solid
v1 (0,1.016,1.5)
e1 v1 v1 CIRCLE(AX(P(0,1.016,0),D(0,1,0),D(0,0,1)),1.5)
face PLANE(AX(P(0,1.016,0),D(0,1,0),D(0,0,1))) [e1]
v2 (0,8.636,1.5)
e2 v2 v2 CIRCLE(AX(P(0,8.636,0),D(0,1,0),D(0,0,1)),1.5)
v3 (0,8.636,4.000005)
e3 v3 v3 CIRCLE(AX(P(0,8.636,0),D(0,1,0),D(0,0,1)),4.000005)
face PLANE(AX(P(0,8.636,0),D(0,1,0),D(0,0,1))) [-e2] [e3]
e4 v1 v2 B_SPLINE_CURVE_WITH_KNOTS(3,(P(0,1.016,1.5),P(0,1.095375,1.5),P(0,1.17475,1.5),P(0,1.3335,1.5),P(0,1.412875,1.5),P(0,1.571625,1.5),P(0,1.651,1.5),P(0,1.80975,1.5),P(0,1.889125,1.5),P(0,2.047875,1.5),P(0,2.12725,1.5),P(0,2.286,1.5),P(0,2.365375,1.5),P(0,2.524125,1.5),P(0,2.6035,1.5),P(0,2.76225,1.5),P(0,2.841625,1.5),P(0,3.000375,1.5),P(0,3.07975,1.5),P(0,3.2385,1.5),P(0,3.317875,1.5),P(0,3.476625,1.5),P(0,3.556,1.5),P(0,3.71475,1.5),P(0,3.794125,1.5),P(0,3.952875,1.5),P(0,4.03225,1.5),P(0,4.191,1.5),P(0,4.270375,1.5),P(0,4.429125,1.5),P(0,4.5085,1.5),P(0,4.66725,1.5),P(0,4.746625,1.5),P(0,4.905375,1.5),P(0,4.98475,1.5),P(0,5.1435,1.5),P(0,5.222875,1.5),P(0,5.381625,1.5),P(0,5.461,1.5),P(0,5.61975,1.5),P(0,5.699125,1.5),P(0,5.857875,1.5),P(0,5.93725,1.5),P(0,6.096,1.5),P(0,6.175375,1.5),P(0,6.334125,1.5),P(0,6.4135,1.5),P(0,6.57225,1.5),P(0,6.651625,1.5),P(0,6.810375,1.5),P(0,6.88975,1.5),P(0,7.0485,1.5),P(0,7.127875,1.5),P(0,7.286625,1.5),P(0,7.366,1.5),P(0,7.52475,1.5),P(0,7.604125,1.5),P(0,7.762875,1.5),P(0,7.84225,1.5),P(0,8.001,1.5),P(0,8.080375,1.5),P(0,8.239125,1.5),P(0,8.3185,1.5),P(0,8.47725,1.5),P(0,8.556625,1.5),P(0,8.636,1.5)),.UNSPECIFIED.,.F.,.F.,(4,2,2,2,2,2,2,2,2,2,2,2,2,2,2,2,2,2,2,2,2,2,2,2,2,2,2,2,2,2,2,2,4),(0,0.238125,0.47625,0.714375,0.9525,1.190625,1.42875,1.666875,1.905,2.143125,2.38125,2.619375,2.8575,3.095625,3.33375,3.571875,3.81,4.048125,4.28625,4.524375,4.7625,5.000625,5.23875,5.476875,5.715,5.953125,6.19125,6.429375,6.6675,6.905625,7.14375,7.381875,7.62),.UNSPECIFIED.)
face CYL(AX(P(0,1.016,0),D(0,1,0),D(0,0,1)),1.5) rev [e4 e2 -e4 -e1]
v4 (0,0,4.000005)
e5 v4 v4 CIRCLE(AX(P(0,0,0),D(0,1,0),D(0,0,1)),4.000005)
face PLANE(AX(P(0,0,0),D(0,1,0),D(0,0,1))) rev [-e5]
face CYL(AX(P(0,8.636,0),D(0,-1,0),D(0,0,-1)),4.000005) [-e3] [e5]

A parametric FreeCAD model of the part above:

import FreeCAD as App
import Part
import Sketcher

doc = App.newDocument("Part")
params = doc.addObject("Spreadsheet::Sheet", "Params")
for row, (alias, value) in enumerate([
    ("pad1_length", "0.34 in"),
    ("pocket1_length", "0.3 in"),
], start=1):
    params.set(f"A{row}", alias)
    params.set(f"B{row}", "=" + value)
    params.setAlias(f"B{row}", alias)

body = doc.addObject("PartDesign::Body", "Body")

# Sketch on XZ plane
sketch1 = doc.addObject("Sketcher::SketchObject", "Sketch")
body.addObject(sketch1)
sketch1.AttachmentSupport = (doc.XZ_Plane, [""])
sketch1.MapMode = "FlatFace"
sketch1.addGeometry(Part.Circle(App.Vector(0, 0, 0), App.Vector(0, 0, 1), 4.000005), False)
sketch1.addConstraint(Sketcher.Constraint("Coincident", 0, 3, -1, 1))
sketch1.addConstraint(Sketcher.Constraint("Diameter", 0, 8.000009))
pad1 = doc.addObject("PartDesign::Pad", "Pad")
body.addObject(pad1)
pad1.Profile = sketch1
pad1.setExpression("Length", "Params.pad1_length")
pad1.Reversed = True

# Sketch on XZ plane
sketch2 = doc.addObject("Sketcher::SketchObject", "Sketch001")
body.addObject(sketch2)
sketch2.AttachmentSupport = (doc.XZ_Plane, [""])
sketch2.MapMode = "FlatFace"
sketch2.AttachmentOffset = App.Placement(App.Vector(0, 0, -0.34 * 25.4), App.Rotation())
sketch2.addGeometry(Part.Circle(App.Vector(0, 0, 0), App.Vector(0, 0, 1), 1.5), False)
sketch2.addConstraint(Sketcher.Constraint("Coincident", 0, 3, -1, 1))
sketch2.addConstraint(Sketcher.Constraint("Diameter", 0, 3.0))
pocket1 = doc.addObject("PartDesign::Pocket", "Pocket")
body.addObject(pocket1)
pocket1.Profile = sketch2
pocket1.setExpression("Length", "Params.pocket1_length")
pocket1.Reversed = True

doc.recompute()
